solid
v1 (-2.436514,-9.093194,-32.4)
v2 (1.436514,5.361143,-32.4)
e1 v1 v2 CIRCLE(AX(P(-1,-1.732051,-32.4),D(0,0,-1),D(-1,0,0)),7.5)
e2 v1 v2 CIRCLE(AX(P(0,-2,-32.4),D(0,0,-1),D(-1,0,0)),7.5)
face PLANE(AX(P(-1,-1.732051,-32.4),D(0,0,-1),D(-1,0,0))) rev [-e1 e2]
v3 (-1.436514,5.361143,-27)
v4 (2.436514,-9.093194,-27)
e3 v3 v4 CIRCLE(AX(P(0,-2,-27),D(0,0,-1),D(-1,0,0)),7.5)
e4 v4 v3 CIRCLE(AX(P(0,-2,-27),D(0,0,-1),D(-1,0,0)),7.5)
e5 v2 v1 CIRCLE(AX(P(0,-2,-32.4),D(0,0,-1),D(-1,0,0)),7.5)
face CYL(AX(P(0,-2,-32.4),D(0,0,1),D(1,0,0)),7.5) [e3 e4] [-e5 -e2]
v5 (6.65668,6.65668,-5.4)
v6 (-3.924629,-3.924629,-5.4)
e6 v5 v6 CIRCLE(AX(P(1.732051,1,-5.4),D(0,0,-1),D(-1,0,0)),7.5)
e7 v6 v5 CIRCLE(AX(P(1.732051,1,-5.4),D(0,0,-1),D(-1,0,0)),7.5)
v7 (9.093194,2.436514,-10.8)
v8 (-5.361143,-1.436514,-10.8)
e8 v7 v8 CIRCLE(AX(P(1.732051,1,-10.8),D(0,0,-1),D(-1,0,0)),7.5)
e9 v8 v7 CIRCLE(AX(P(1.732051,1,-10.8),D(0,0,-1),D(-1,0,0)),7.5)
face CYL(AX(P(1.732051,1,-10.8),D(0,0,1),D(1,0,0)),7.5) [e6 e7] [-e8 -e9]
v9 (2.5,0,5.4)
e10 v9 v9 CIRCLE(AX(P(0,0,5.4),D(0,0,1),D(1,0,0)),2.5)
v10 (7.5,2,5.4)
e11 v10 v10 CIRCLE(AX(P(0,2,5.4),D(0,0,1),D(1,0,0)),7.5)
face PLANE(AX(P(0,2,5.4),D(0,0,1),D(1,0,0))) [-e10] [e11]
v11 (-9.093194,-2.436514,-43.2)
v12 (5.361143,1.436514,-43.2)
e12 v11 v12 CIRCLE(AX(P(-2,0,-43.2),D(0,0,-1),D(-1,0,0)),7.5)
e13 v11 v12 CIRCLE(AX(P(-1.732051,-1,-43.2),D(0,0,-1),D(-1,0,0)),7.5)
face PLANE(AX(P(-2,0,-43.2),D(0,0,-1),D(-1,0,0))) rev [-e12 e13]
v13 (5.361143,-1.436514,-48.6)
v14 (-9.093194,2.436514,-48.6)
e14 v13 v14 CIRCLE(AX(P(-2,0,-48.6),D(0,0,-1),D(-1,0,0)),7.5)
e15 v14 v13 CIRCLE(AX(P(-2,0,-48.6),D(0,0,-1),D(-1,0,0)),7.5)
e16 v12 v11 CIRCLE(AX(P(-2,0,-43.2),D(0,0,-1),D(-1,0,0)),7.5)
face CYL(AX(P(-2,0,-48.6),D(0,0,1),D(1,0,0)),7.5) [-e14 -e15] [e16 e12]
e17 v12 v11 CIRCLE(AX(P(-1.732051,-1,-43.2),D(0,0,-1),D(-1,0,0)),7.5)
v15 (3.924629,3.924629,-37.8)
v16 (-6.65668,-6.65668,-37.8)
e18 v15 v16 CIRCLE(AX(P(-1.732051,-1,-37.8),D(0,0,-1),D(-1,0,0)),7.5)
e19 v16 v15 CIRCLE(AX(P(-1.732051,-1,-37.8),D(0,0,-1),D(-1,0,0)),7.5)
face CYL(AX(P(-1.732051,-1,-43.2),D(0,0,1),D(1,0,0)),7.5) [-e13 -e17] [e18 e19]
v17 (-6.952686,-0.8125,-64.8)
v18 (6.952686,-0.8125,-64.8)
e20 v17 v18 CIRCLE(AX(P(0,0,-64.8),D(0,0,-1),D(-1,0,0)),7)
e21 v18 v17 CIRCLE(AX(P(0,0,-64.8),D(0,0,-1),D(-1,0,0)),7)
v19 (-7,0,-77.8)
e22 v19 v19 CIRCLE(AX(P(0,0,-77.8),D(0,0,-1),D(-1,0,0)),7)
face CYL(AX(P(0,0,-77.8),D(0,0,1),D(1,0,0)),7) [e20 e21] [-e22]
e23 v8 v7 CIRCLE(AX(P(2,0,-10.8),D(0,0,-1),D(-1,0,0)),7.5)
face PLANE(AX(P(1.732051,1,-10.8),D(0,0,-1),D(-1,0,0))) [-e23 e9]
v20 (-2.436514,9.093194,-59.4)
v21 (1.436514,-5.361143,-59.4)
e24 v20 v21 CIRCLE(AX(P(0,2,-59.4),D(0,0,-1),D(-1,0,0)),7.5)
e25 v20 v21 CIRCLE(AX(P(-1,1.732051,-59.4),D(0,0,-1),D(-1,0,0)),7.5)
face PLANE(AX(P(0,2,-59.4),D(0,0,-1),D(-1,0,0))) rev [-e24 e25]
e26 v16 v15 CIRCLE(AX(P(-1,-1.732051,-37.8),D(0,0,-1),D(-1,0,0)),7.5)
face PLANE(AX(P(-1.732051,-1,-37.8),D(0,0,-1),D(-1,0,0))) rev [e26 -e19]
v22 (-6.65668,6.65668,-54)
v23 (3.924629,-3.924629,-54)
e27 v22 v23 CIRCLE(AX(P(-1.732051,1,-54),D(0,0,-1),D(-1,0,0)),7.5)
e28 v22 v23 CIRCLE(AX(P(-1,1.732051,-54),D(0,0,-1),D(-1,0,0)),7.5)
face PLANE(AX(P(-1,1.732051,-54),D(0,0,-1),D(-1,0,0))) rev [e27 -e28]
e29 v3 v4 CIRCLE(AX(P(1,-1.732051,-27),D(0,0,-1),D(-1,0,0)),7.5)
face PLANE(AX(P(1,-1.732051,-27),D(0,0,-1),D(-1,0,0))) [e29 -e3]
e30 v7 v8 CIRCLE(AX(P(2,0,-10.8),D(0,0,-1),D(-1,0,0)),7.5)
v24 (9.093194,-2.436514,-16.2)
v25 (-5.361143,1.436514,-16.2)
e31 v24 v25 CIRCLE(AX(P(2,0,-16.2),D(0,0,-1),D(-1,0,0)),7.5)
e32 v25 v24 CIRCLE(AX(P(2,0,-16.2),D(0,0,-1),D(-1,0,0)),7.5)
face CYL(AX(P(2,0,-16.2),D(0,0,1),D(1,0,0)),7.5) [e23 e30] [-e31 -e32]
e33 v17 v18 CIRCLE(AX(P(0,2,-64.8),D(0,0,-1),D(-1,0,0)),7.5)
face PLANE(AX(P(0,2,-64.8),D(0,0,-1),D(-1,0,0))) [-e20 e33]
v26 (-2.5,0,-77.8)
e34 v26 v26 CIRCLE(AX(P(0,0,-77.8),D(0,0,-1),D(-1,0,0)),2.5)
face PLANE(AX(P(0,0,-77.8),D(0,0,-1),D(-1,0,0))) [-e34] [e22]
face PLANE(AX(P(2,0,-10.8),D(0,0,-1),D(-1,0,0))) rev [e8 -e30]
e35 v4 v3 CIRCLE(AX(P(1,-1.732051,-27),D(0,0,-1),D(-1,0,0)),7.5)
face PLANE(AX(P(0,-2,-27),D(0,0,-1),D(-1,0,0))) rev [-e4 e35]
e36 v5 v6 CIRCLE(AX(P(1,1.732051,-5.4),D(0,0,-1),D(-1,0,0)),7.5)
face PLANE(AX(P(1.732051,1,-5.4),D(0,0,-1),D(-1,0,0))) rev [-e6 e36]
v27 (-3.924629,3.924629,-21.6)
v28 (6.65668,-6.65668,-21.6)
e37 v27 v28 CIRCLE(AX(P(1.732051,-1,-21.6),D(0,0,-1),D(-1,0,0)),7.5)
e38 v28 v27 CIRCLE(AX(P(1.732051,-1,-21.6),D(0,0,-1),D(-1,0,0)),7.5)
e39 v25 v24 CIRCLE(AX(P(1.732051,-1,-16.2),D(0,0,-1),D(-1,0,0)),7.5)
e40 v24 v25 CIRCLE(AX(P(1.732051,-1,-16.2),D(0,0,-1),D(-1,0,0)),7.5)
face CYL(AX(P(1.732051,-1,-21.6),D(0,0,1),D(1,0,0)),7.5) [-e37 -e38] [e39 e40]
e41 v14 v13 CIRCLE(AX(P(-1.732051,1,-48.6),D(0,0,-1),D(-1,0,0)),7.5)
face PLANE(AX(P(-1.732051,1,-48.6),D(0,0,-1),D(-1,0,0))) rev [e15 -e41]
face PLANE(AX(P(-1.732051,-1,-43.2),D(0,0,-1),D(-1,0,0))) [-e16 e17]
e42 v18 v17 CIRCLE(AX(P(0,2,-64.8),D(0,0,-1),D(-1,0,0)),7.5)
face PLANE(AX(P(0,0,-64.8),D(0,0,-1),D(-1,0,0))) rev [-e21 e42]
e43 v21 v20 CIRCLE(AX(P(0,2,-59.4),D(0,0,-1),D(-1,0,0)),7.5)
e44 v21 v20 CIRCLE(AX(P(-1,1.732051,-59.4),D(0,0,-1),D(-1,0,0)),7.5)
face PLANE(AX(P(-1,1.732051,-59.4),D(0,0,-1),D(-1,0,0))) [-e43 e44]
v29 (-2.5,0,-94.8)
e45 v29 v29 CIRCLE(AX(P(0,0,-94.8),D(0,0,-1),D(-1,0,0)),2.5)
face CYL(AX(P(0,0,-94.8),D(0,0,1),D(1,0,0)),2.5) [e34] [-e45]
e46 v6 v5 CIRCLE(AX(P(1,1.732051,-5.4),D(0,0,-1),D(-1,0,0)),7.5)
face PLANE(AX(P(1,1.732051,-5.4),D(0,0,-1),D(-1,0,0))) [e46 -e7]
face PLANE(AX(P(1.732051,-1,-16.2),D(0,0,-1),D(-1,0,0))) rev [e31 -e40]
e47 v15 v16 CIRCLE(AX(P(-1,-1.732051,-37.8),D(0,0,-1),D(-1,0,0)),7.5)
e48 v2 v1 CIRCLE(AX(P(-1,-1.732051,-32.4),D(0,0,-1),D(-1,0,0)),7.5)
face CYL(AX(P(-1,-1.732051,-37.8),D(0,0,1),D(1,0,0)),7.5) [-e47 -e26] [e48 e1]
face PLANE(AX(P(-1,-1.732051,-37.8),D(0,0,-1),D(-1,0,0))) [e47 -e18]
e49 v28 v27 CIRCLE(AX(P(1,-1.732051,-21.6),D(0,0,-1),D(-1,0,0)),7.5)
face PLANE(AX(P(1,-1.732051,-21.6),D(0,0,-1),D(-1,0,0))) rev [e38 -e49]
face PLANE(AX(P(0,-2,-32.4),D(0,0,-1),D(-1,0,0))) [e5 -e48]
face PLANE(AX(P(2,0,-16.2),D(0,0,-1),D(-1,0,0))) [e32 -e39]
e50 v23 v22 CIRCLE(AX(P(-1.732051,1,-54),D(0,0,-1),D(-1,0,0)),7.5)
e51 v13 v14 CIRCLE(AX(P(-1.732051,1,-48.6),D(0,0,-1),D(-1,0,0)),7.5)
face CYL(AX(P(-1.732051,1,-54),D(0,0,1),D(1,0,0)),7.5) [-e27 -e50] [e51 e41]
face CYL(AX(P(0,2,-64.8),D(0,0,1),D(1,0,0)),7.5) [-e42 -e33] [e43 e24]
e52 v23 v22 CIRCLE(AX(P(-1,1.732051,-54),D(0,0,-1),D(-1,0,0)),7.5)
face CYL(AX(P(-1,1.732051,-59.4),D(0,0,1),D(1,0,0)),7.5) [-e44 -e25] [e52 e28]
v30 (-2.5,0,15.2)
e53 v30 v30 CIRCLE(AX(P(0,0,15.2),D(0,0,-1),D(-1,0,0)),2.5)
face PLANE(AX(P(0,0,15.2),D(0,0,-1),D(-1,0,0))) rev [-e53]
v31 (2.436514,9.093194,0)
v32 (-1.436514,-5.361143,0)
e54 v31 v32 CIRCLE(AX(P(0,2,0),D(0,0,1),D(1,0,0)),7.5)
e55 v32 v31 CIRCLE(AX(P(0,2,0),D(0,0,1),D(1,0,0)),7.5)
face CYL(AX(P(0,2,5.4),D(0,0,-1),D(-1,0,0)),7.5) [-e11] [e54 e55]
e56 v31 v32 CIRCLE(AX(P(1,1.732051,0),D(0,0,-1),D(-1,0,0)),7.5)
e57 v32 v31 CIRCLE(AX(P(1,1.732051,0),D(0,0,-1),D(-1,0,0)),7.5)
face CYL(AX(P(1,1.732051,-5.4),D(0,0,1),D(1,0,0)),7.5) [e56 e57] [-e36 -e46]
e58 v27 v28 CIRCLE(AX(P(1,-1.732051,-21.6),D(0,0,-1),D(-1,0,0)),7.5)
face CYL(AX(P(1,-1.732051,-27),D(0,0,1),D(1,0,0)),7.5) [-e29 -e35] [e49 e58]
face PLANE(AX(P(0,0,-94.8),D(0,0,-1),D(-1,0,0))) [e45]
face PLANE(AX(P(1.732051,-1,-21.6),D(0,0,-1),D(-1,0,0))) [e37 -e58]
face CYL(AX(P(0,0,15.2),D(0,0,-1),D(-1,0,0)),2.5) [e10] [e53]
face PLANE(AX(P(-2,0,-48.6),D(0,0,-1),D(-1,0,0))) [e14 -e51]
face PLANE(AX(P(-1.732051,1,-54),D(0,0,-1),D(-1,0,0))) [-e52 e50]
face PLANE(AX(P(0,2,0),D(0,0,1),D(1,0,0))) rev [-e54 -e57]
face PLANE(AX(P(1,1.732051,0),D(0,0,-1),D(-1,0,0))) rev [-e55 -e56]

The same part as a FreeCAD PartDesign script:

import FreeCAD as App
import Part
import Sketcher

V = App.Vector
Q = App.Units.Quantity

doc = App.newDocument("Part")
body = doc.addObject("PartDesign::Body", "Body")

# Sketch on XY plane
sketch1 = doc.addObject("Sketcher::SketchObject", "Sketch")
body.addObject(sketch1)
sketch1.AttachmentSupport = (doc.XY_Plane, [""])
sketch1.MapMode = "FlatFace"
sketch1.addGeometry([
    Part.Circle(V(0, 2, 0), V(0, 0, 1), 7.5),
    Part.Circle(V(0, 0, 0), V(0, 0, 1), 2.5),
], False)
sketch1.addConstraint([
    Sketcher.Constraint("Coincident", 1, 3, -1, 1),
    Sketcher.Constraint("PointOnObject", 0, 3, -2),
    Sketcher.Constraint("Diameter", 0, Q("15 mm")),
    Sketcher.Constraint("Diameter", 1, Q("5 mm")),
    Sketcher.Constraint("DistanceY", -1, 1, 0, 3, Q("2 mm")),
])
pad1 = doc.addObject("PartDesign::Pad", "Pad")
body.addObject(pad1)
pad1.Profile = sketch1
pad1.Length = 5.4

# Sketch on XY plane
sketch2 = doc.addObject("Sketcher::SketchObject", "Sketch001")
body.addObject(sketch2)
sketch2.AttachmentSupport = (doc.XY_Plane, [""])
sketch2.MapMode = "FlatFace"
sketch2.AttachmentOffset = App.Placement(V(0, 0, -5.4), App.Rotation())
sketch2.addGeometry([
    Part.Circle(V(1, 1.7, 0), V(0, 0, 1), 7.5),
    Part.Circle(V(0, 0, 0), V(0, 0, 1), 2.5),
], False)
sketch2.addConstraint([
    Sketcher.Constraint("Coincident", 1, 3, -1, 1),
    Sketcher.Constraint("Diameter", 0, Q("15 mm")),
    Sketcher.Constraint("Diameter", 1, Q("5 mm")),
    Sketcher.Constraint("DistanceX", -1, 1, 0, 3, Q("1 mm")),
    Sketcher.Constraint("DistanceY", -1, 1, 0, 3, Q("1.732051 mm")),
])
pad2 = doc.addObject("PartDesign::Pad", "Pad001")
body.addObject(pad2)
pad2.Profile = sketch2
pad2.Length = 5.4

# Sketch on XY plane
sketch3 = doc.addObject("Sketcher::SketchObject", "Sketch002")
body.addObject(sketch3)
sketch3.AttachmentSupport = (doc.XY_Plane, [""])
sketch3.MapMode = "FlatFace"
sketch3.AttachmentOffset = App.Placement(V(0, 0, -10.8), App.Rotation())
sketch3.addGeometry([
    Part.Circle(V(1.7, 1, 0), V(0, 0, 1), 7.5),
    Part.Circle(V(0, 0, 0), V(0, 0, 1), 2.5),
], False)
sketch3.addConstraint([
    Sketcher.Constraint("Coincident", 1, 3, -1, 1),
    Sketcher.Constraint("Diameter", 0, Q("15 mm")),
    Sketcher.Constraint("Diameter", 1, Q("5 mm")),
    Sketcher.Constraint("DistanceY", -1, 1, 0, 3, Q("1 mm")),
    Sketcher.Constraint("DistanceX", -1, 1, 0, 3, Q("1.732051 mm")),
])
pad3 = doc.addObject("PartDesign::Pad", "Pad002")
body.addObject(pad3)
pad3.Profile = sketch3
pad3.Length = 5.4

# Sketch on XY plane
sketch4 = doc.addObject("Sketcher::SketchObject", "Sketch003")
body.addObject(sketch4)
sketch4.AttachmentSupport = (doc.XY_Plane, [""])
sketch4.MapMode = "FlatFace"
sketch4.AttachmentOffset = App.Placement(V(0, 0, -16.2), App.Rotation())
sketch4.addGeometry([
    Part.Circle(V(2, 0, 0), V(0, 0, 1), 7.5),
    Part.Circle(V(0, 0, 0), V(0, 0, 1), 2.5),
], False)
sketch4.addConstraint([
    Sketcher.Constraint("Coincident", 1, 3, -1, 1),
    Sketcher.Constraint("PointOnObject", 0, 3, -1),
    Sketcher.Constraint("Diameter", 0, Q("15 mm")),
    Sketcher.Constraint("Diameter", 1, Q("5 mm")),
    Sketcher.Constraint("DistanceX", -1, 1, 0, 3, Q("2 mm")),
])
pad4 = doc.addObject("PartDesign::Pad", "Pad003")
body.addObject(pad4)
pad4.Profile = sketch4
pad4.Length = 5.4

# Sketch on XY plane
sketch5 = doc.addObject("Sketcher::SketchObject", "Sketch004")
body.addObject(sketch5)
sketch5.AttachmentSupport = (doc.XY_Plane, [""])
sketch5.MapMode = "FlatFace"
sketch5.AttachmentOffset = App.Placement(V(0, 0, -21.6), App.Rotation())
sketch5.addGeometry([
    Part.Circle(V(1.7, -1, 0), V(0, 0, 1), 7.5),
    Part.Circle(V(0, 0, 0), V(0, 0, 1), 2.5),
], False)
sketch5.addConstraint([
    Sketcher.Constraint("Coincident", 1, 3, -1, 1),
    Sketcher.Constraint("Diameter", 0, Q("15 mm")),
    Sketcher.Constraint("Diameter", 1, Q("5 mm")),
    Sketcher.Constraint("DistanceY", 0, 3, -1, 1, Q("1 mm")),
    Sketcher.Constraint("DistanceX", -1, 1, 0, 3, Q("1.732051 mm")),
])
pad5 = doc.addObject("PartDesign::Pad", "Pad004")
body.addObject(pad5)
pad5.Profile = sketch5
pad5.Length = 5.4

# Sketch on XY plane
sketch6 = doc.addObject("Sketcher::SketchObject", "Sketch005")
body.addObject(sketch6)
sketch6.AttachmentSupport = (doc.XY_Plane, [""])
sketch6.MapMode = "FlatFace"
sketch6.AttachmentOffset = App.Placement(V(0, 0, -27), App.Rotation())
sketch6.addGeometry([
    Part.Circle(V(1, -1.7, 0), V(0, 0, 1), 7.5),
    Part.Circle(V(0, 0, 0), V(0, 0, 1), 2.5),
], False)
sketch6.addConstraint([
    Sketcher.Constraint("Coincident", 1, 3, -1, 1),
    Sketcher.Constraint("Diameter", 0, Q("15 mm")),
    Sketcher.Constraint("Diameter", 1, Q("5 mm")),
    Sketcher.Constraint("DistanceX", -1, 1, 0, 3, Q("1 mm")),
    Sketcher.Constraint("DistanceY", 0, 3, -1, 1, Q("1.732051 mm")),
])
pad6 = doc.addObject("PartDesign::Pad", "Pad005")
body.addObject(pad6)
pad6.Profile = sketch6
pad6.Length = 5.4

# Sketch on XY plane
sketch7 = doc.addObject("Sketcher::SketchObject", "Sketch006")
body.addObject(sketch7)
sketch7.AttachmentSupport = (doc.XY_Plane, [""])
sketch7.MapMode = "FlatFace"
sketch7.AttachmentOffset = App.Placement(V(0, 0, -32.4), App.Rotation())
sketch7.addGeometry([
    Part.Circle(V(0, -2, 0), V(0, 0, 1), 7.5),
    Part.Circle(V(0, 0, 0), V(0, 0, 1), 2.5),
], False)
sketch7.addConstraint([
    Sketcher.Constraint("Coincident", 1, 3, -1, 1),
    Sketcher.Constraint("PointOnObject", 0, 3, -2),
    Sketcher.Constraint("Diameter", 0, Q("15 mm")),
    Sketcher.Constraint("Diameter", 1, Q("5 mm")),
    Sketcher.Constraint("DistanceY", 0, 3, -1, 1, Q("2 mm")),
])
pad7 = doc.addObject("PartDesign::Pad", "Pad006")
body.addObject(pad7)
pad7.Profile = sketch7
pad7.Length = 5.4

# Sketch on XY plane
sketch8 = doc.addObject("Sketcher::SketchObject", "Sketch007")
body.addObject(sketch8)
sketch8.AttachmentSupport = (doc.XY_Plane, [""])
sketch8.MapMode = "FlatFace"
sketch8.AttachmentOffset = App.Placement(V(0, 0, -37.8), App.Rotation())
sketch8.addGeometry([
    Part.Circle(V(-1, -1.7, 0), V(0, 0, 1), 7.5),
    Part.Circle(V(0, 0, 0), V(0, 0, 1), 2.5),
], False)
sketch8.addConstraint([
    Sketcher.Constraint("Coincident", 1, 3, -1, 1),
    Sketcher.Constraint("Diameter", 0, Q("15 mm")),
    Sketcher.Constraint("Diameter", 1, Q("5 mm")),
    Sketcher.Constraint("DistanceX", 0, 3, -1, 1, Q("1 mm")),
    Sketcher.Constraint("DistanceY", 0, 3, -1, 1, Q("1.732051 mm")),
])
pad8 = doc.addObject("PartDesign::Pad", "Pad007")
body.addObject(pad8)
pad8.Profile = sketch8
pad8.Length = 5.4

# Sketch on XY plane
sketch9 = doc.addObject("Sketcher::SketchObject", "Sketch008")
body.addObject(sketch9)
sketch9.AttachmentSupport = (doc.XY_Plane, [""])
sketch9.MapMode = "FlatFace"
sketch9.AttachmentOffset = App.Placement(V(0, 0, -43.2), App.Rotation())
sketch9.addGeometry([
    Part.Circle(V(-1.7, -1, 0), V(0, 0, 1), 7.5),
    Part.Circle(V(0, 0, 0), V(0, 0, 1), 2.5),
], False)
sketch9.addConstraint([
    Sketcher.Constraint("Coincident", 1, 3, -1, 1),
    Sketcher.Constraint("Diameter", 0, Q("15 mm")),
    Sketcher.Constraint("Diameter", 1, Q("5 mm")),
    Sketcher.Constraint("DistanceY", 0, 3, -1, 1, Q("1 mm")),
    Sketcher.Constraint("DistanceX", 0, 3, -1, 1, Q("1.732051 mm")),
])
pad9 = doc.addObject("PartDesign::Pad", "Pad008")
body.addObject(pad9)
pad9.Profile = sketch9
pad9.Length = 5.4

# Sketch on XY plane
sketch10 = doc.addObject("Sketcher::SketchObject", "Sketch009")
body.addObject(sketch10)
sketch10.AttachmentSupport = (doc.XY_Plane, [""])
sketch10.MapMode = "FlatFace"
sketch10.AttachmentOffset = App.Placement(V(0, 0, -48.6), App.Rotation())
sketch10.addGeometry([
    Part.Circle(V(-2, 0, 0), V(0, 0, 1), 7.5),
    Part.Circle(V(0, 0, 0), V(0, 0, 1), 2.5),
], False)
sketch10.addConstraint([
    Sketcher.Constraint("Coincident", 1, 3, -1, 1),
    Sketcher.Constraint("PointOnObject", 0, 3, -1),
    Sketcher.Constraint("Diameter", 0, Q("15 mm")),
    Sketcher.Constraint("Diameter", 1, Q("5 mm")),
    Sketcher.Constraint("DistanceX", 0, 3, -1, 1, Q("2 mm")),
])
pad10 = doc.addObject("PartDesign::Pad", "Pad009")
body.addObject(pad10)
pad10.Profile = sketch10
pad10.Length = 5.4

# Sketch on XY plane
sketch11 = doc.addObject("Sketcher::SketchObject", "Sketch010")
body.addObject(sketch11)
sketch11.AttachmentSupport = (doc.XY_Plane, [""])
sketch11.MapMode = "FlatFace"
sketch11.AttachmentOffset = App.Placement(V(0, 0, -54), App.Rotation())
sketch11.addGeometry([
    Part.Circle(V(-1.7, 1, 0), V(0, 0, 1), 7.5),
    Part.Circle(V(0, 0, 0), V(0, 0, 1), 2.5),
], False)
sketch11.addConstraint([
    Sketcher.Constraint("Coincident", 1, 3, -1, 1),
    Sketcher.Constraint("Diameter", 0, Q("15 mm")),
    Sketcher.Constraint("Diameter", 1, Q("5 mm")),
    Sketcher.Constraint("DistanceY", -1, 1, 0, 3, Q("1 mm")),
    Sketcher.Constraint("DistanceX", 0, 3, -1, 1, Q("1.732051 mm")),
])
pad11 = doc.addObject("PartDesign::Pad", "Pad010")
body.addObject(pad11)
pad11.Profile = sketch11
pad11.Length = 5.4

# Sketch on XY plane
sketch12 = doc.addObject("Sketcher::SketchObject", "Sketch011")
body.addObject(sketch12)
sketch12.AttachmentSupport = (doc.XY_Plane, [""])
sketch12.MapMode = "FlatFace"
sketch12.AttachmentOffset = App.Placement(V(0, 0, -59.4), App.Rotation())
sketch12.addGeometry([
    Part.Circle(V(-1, 1.7, 0), V(0, 0, 1), 7.5),
    Part.Circle(V(0, 0, 0), V(0, 0, 1), 2.5),
], False)
sketch12.addConstraint([
    Sketcher.Constraint("Coincident", 1, 3, -1, 1),
    Sketcher.Constraint("Diameter", 0, Q("15 mm")),
    Sketcher.Constraint("Diameter", 1, Q("5 mm")),
    Sketcher.Constraint("DistanceX", 0, 3, -1, 1, Q("1 mm")),
    Sketcher.Constraint("DistanceY", -1, 1, 0, 3, Q("1.732051 mm")),
])
pad12 = doc.addObject("PartDesign::Pad", "Pad011")
body.addObject(pad12)
pad12.Profile = sketch12
pad12.Length = 5.4

# Sketch on XY plane
sketch13 = doc.addObject("Sketcher::SketchObject", "Sketch012")
body.addObject(sketch13)
sketch13.AttachmentSupport = (doc.XY_Plane, [""])
sketch13.MapMode = "FlatFace"
sketch13.AttachmentOffset = App.Placement(V(0, 0, -64.8), App.Rotation())
sketch13.addGeometry([
    Part.Circle(V(0, 2, 0), V(0, 0, 1), 7.5),
    Part.Circle(V(0, 0, 0), V(0, 0, 1), 2.5),
], False)
sketch13.addConstraint([
    Sketcher.Constraint("Coincident", 1, 3, -1, 1),
    Sketcher.Constraint("PointOnObject", 0, 3, -2),
    Sketcher.Constraint("Diameter", 0, Q("15 mm")),
    Sketcher.Constraint("Diameter", 1, Q("5 mm")),
    Sketcher.Constraint("DistanceY", -1, 1, 0, 3, Q("2 mm")),
])
pad13 = doc.addObject("PartDesign::Pad", "Pad012")
body.addObject(pad13)
pad13.Profile = sketch13
pad13.Length = 5.4

# Sketch on XY plane
sketch14 = doc.addObject("Sketcher::SketchObject", "Sketch013")
body.addObject(sketch14)
sketch14.AttachmentSupport = (doc.XY_Plane, [""])
sketch14.MapMode = "FlatFace"
sketch14.AttachmentOffset = App.Placement(V(0, 0, -64.8), App.Rotation())
sketch14.addGeometry(Part.Circle(V(0, 0, 0), V(0, 0, 1), 2.5), False)
sketch14.addConstraint([
    Sketcher.Constraint("Coincident", 0, 3, -1, 1),
    Sketcher.Constraint("Diameter", 0, Q("5 mm")),
])
pad14 = doc.addObject("PartDesign::Pad", "Pad013")
body.addObject(pad14)
pad14.Profile = sketch14
pad14.Length = 80

# Sketch on XY plane
sketch15 = doc.addObject("Sketcher::SketchObject", "Sketch014")
body.addObject(sketch15)
sketch15.AttachmentSupport = (doc.XY_Plane, [""])
sketch15.MapMode = "FlatFace"
sketch15.AttachmentOffset = App.Placement(V(0, 0, -94.8), App.Rotation())
sketch15.addGeometry(Part.Circle(V(0, 0, 0), V(0, 0, 1), 2.5), False)
sketch15.addConstraint([
    Sketcher.Constraint("Coincident", 0, 3, -1, 1),
    Sketcher.Constraint("Diameter", 0, Q("5 mm")),
])
pad15 = doc.addObject("PartDesign::Pad", "Pad014")
body.addObject(pad15)
pad15.Profile = sketch15
pad15.Length = 30

# Sketch on XY plane
sketch16 = doc.addObject("Sketcher::SketchObject", "Sketch015")
body.addObject(sketch16)
sketch16.AttachmentSupport = (doc.XY_Plane, [""])
sketch16.MapMode = "FlatFace"
sketch16.AttachmentOffset = App.Placement(V(0, 0, -64.8), App.Rotation())
sketch16.addGeometry(Part.Circle(V(0, 0, 0), V(0, 0, 1), 7), False)
sketch16.addConstraint([
    Sketcher.Constraint("Coincident", 0, 3, -1, 1),
    Sketcher.Constraint("Diameter", 0, Q("14 mm")),
])
pad16 = doc.addObject("PartDesign::Pad", "Pad015")
body.addObject(pad16)
pad16.Profile = sketch16
pad16.Length = 13
pad16.Reversed = True

doc.recompute()
